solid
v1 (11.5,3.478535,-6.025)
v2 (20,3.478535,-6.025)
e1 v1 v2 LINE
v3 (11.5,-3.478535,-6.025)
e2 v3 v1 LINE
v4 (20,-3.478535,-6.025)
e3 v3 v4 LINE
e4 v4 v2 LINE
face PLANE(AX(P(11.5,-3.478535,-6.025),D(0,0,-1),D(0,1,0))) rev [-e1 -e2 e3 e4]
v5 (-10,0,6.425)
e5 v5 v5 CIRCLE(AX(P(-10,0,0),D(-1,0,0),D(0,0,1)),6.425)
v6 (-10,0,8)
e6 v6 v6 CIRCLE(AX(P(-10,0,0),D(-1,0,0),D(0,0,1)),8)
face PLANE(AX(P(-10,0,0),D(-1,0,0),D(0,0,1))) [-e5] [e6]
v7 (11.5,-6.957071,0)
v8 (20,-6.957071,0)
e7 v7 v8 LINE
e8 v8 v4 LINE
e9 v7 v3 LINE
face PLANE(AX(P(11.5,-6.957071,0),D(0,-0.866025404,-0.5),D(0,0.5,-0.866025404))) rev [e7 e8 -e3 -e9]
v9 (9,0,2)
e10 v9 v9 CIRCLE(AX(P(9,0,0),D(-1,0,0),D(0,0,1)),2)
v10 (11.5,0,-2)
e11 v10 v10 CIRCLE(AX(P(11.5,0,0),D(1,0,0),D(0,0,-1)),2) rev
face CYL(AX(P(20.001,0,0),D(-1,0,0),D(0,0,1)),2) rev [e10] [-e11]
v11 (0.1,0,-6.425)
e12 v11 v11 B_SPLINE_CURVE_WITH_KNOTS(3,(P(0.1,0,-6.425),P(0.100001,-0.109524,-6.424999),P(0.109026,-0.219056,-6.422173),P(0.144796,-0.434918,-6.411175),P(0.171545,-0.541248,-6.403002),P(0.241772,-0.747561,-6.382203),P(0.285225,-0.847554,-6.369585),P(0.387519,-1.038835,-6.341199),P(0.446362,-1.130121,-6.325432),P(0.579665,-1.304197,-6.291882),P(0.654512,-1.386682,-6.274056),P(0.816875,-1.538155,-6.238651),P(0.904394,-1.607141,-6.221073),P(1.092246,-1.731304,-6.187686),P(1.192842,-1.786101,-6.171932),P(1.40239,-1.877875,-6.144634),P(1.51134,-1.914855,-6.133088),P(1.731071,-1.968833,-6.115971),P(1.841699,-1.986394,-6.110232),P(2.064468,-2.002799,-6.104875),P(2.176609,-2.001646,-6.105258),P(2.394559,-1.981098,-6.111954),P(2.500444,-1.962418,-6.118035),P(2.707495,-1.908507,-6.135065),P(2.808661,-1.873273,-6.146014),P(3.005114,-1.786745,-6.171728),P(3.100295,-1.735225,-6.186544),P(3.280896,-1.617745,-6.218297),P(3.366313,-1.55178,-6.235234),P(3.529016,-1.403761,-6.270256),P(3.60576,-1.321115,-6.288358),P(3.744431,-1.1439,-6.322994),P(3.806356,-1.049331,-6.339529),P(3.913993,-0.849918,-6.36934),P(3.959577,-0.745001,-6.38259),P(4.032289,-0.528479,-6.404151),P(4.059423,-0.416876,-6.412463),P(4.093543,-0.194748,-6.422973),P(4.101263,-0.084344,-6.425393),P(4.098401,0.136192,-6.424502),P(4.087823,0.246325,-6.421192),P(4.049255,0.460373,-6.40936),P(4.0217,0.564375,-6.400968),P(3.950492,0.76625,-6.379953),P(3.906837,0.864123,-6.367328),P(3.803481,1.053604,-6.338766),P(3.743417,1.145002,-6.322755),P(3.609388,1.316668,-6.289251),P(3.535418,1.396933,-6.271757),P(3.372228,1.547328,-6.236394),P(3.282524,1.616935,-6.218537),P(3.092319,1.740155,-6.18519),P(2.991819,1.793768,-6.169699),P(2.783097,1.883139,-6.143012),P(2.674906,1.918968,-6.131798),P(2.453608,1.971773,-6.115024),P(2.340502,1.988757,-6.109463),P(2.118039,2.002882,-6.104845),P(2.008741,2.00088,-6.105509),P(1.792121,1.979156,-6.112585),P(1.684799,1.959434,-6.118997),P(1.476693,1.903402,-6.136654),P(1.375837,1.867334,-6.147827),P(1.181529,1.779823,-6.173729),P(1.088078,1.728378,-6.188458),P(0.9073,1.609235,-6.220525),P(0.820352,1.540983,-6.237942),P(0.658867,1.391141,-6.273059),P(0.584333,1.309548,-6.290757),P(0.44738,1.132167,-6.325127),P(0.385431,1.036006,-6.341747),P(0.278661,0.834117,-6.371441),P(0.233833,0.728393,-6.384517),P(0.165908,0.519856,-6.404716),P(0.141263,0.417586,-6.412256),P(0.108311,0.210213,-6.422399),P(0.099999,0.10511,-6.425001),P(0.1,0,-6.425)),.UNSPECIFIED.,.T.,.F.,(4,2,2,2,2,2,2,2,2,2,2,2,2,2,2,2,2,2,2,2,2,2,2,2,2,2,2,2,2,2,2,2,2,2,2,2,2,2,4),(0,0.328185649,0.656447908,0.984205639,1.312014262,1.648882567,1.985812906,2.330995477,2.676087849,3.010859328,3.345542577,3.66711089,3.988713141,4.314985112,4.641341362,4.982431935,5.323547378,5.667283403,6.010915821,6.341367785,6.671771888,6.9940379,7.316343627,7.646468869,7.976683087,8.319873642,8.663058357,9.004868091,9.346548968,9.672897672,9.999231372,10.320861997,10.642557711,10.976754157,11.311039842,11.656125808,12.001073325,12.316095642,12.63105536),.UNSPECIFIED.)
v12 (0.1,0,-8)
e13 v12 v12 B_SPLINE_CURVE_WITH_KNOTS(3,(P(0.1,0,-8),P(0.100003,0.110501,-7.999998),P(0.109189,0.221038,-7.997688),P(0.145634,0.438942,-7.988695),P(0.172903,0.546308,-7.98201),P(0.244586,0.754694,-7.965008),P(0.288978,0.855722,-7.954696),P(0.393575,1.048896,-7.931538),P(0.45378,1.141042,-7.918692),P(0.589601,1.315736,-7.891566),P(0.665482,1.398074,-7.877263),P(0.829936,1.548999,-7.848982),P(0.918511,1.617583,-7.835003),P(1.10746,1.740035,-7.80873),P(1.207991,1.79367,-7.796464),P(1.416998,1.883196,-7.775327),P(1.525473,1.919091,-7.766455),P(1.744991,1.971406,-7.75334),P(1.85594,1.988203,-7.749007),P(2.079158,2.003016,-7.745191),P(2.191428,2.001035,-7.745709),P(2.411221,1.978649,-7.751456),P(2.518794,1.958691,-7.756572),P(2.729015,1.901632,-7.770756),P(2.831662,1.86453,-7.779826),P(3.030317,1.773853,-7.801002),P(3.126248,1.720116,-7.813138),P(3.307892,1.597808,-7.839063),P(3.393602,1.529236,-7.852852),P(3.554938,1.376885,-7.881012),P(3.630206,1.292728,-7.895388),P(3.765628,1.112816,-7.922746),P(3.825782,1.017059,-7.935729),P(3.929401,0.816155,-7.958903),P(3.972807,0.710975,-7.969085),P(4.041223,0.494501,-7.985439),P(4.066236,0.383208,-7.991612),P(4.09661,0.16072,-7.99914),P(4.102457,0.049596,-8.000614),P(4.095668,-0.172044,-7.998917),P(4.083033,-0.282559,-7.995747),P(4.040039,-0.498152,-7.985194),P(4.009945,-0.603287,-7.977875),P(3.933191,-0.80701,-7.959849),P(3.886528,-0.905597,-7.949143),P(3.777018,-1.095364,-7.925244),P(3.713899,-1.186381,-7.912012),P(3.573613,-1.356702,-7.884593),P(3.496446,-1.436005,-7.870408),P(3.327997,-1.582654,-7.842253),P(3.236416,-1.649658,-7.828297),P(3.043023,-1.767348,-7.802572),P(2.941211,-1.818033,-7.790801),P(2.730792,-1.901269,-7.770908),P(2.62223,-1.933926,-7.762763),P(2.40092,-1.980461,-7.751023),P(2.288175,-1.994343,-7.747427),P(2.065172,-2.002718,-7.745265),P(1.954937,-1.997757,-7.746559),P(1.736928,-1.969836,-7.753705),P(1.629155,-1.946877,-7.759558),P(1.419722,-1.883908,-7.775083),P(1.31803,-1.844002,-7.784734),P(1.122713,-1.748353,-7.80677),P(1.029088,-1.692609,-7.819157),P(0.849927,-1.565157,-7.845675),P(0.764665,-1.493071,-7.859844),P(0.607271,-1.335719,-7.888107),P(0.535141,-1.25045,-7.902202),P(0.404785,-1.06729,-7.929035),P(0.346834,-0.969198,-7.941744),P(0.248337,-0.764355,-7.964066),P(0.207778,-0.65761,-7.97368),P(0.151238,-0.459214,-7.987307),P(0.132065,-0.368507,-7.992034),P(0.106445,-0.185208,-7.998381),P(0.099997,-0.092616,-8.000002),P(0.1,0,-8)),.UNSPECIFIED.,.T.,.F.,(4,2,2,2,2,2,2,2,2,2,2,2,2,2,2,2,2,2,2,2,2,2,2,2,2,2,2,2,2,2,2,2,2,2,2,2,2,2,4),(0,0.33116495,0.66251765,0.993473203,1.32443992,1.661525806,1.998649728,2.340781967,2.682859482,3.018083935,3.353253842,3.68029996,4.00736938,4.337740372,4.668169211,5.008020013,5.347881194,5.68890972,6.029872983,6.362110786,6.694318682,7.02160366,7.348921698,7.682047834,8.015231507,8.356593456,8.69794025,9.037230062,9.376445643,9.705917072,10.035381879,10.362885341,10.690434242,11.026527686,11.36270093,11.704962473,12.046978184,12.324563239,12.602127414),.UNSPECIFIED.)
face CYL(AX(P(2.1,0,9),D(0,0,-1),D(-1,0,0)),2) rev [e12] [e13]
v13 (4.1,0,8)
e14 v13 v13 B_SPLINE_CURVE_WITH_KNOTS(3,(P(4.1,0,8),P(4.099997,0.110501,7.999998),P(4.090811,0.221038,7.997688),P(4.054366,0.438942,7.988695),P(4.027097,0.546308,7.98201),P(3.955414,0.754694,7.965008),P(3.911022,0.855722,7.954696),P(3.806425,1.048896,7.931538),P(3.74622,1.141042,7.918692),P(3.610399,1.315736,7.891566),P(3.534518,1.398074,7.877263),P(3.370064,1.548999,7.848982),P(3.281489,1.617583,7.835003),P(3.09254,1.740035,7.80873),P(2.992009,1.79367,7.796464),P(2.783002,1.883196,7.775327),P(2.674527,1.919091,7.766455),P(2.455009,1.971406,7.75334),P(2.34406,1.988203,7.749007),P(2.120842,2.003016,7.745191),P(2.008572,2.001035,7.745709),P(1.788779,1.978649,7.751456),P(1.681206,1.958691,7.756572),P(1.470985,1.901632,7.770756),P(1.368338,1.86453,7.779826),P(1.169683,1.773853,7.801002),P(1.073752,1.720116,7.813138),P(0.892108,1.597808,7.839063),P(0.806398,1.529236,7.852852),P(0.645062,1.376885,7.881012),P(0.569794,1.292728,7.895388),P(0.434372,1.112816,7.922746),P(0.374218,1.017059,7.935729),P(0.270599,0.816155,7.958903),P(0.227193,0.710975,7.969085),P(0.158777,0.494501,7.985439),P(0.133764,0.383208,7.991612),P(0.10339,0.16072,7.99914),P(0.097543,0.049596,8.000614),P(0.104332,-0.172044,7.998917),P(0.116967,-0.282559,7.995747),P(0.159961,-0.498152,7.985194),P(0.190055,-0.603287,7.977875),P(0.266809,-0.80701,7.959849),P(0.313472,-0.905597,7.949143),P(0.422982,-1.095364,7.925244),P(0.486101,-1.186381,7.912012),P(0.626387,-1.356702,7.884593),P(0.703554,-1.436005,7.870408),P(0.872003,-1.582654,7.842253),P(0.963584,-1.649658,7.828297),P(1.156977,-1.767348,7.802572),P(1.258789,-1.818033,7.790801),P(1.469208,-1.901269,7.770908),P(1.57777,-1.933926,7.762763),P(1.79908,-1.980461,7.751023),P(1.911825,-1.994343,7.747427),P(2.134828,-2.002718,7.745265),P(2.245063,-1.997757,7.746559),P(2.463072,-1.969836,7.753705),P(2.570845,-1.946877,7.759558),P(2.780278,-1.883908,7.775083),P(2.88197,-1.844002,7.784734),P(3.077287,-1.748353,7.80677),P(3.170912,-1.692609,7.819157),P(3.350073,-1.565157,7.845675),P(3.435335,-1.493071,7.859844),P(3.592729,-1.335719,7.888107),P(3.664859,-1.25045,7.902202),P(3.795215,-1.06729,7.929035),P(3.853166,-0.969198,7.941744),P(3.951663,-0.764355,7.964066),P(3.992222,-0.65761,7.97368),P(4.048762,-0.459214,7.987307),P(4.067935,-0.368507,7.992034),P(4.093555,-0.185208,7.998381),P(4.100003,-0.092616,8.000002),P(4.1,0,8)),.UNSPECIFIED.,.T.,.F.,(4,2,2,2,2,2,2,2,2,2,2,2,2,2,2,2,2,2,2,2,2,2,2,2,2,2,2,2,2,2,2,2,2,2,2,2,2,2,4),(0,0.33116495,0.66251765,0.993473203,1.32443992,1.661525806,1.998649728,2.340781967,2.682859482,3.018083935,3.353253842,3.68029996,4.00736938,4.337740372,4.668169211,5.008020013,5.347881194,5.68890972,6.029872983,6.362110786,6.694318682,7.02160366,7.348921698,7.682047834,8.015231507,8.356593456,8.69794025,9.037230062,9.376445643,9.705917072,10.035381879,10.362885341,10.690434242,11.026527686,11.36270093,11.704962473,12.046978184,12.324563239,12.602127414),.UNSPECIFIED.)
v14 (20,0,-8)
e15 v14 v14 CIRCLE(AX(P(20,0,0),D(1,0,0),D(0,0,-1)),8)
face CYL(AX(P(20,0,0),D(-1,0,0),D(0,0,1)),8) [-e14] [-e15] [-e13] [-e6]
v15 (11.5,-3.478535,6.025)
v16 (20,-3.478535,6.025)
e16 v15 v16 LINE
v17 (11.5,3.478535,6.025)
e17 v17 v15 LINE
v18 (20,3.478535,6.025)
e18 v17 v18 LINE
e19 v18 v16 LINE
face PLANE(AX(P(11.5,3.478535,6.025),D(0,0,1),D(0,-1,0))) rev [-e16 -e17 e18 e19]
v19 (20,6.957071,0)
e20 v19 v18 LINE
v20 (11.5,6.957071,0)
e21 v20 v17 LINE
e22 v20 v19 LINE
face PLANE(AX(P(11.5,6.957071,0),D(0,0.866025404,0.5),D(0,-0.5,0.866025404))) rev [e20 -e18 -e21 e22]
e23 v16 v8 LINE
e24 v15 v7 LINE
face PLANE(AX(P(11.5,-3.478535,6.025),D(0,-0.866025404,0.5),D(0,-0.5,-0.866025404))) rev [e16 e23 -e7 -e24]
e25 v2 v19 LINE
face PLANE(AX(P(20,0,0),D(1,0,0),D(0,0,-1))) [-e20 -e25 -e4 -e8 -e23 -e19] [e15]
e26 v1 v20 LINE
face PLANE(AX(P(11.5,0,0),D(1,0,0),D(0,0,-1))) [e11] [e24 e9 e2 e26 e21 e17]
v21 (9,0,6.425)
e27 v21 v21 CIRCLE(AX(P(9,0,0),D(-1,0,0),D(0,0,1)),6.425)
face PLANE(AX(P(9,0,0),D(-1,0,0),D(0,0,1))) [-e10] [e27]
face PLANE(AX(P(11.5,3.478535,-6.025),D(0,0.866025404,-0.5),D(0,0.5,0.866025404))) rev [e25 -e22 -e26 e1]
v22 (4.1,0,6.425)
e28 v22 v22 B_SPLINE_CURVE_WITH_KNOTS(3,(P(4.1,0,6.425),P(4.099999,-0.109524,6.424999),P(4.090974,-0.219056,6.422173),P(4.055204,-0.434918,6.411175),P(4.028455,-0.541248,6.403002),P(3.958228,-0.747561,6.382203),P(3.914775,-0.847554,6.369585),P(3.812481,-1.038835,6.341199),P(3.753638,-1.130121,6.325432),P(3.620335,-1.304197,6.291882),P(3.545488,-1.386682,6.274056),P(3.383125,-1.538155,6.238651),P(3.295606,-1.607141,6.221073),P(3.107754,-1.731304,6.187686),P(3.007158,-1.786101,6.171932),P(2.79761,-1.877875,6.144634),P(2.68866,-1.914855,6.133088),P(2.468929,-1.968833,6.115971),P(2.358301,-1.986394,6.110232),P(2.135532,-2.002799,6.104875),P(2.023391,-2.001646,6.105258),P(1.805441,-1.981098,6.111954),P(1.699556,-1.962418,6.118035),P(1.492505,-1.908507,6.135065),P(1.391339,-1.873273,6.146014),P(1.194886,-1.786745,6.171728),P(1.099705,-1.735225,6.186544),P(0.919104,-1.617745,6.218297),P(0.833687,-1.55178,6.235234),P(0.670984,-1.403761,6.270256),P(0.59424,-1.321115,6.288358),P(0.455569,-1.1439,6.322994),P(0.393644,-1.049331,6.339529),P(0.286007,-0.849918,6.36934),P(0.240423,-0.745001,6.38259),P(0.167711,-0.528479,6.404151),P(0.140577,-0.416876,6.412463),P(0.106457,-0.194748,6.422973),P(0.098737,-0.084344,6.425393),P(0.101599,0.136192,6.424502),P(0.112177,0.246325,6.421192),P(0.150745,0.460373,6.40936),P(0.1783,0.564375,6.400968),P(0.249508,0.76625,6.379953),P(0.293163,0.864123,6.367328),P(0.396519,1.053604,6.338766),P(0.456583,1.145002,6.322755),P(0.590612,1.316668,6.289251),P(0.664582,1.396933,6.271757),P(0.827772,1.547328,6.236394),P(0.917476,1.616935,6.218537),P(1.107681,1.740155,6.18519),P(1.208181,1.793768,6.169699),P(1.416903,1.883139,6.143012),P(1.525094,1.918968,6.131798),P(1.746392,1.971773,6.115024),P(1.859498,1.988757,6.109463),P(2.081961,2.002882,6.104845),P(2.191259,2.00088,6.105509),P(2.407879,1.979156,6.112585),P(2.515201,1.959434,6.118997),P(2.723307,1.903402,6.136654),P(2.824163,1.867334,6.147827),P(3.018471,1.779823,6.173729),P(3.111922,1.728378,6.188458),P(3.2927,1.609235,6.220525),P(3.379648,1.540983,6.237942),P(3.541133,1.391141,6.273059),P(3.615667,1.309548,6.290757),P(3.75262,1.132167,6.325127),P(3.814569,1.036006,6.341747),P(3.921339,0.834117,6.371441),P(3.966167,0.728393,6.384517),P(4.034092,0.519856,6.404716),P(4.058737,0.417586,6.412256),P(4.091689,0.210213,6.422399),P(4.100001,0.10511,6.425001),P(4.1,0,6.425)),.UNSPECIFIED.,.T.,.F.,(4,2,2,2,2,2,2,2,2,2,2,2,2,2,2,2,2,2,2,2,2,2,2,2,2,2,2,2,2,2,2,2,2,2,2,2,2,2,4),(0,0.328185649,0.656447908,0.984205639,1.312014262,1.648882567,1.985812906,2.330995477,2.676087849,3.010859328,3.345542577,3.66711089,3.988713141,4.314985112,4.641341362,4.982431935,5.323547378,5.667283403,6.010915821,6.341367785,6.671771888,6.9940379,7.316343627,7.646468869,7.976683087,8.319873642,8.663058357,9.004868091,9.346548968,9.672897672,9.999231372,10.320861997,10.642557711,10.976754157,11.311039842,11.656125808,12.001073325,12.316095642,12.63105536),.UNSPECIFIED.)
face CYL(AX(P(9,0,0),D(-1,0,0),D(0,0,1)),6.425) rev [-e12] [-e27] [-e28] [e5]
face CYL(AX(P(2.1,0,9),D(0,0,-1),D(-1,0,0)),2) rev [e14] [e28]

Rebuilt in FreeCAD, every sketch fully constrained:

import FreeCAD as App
import Part
import Sketcher

V = App.Vector
Q = App.Units.Quantity


def add_polygon(sketch, points):
    """Adds a closed chain of lines whose ends are joined by coincident constraints."""
    first, n = sketch.GeometryCount, len(points)
    for a, b in zip(points, points[1:] + points[:1]):
        sketch.addGeometry(Part.LineSegment(App.Vector(*a, 0), App.Vector(*b, 0)), False)
    for i in range(n):
        sketch.addConstraint(Sketcher.Constraint("Coincident", first + i, 2, first + (i + 1) % n, 1))

doc = App.newDocument("Part")
body = doc.addObject("PartDesign::Body", "Body")

# Sketch on YZ plane
sketch1 = doc.addObject("Sketcher::SketchObject", "Sketch")
body.addObject(sketch1)
sketch1.AttachmentSupport = (doc.YZ_Plane, [""])
sketch1.MapMode = "FlatFace"
sketch1.addGeometry(Part.Circle(V(0, 0, 0), V(0, 0, 1), 8), False)
sketch1.addConstraint([
    Sketcher.Constraint("Coincident", 0, 3, -1, 1),
    Sketcher.Constraint("Diameter", 0, Q("16 mm")),
])
pad1 = doc.addObject("PartDesign::Pad", "Pad")
body.addObject(pad1)
pad1.Profile = sketch1
pad1.Length = 20

# Sketch on YZ plane
sketch2 = doc.addObject("Sketcher::SketchObject", "Sketch001")
body.addObject(sketch2)
sketch2.AttachmentSupport = (doc.YZ_Plane, [""])
sketch2.MapMode = "FlatFace"
sketch2.AttachmentOffset = App.Placement(V(0, 0, 20), App.Rotation())
add_polygon(sketch2, [(-7, 0), (-3, -6), (3, -6), (7, 0), (3, 6), (-3, 6)])  # lines 0-5
sketch2.addConstraint([
    Sketcher.Constraint("Horizontal", 1),
    Sketcher.Constraint("Horizontal", 4),
    Sketcher.Constraint("Symmetric", 0, 2, 3, 2, -1, 1),
    Sketcher.Constraint("Symmetric", 2, 2, 5, 2, -1, 1),
    Sketcher.Constraint("PointOnObject", 2, 2, -1),
    Sketcher.Constraint("Parallel", 2, 5),
    Sketcher.Constraint("Vertical", 1, 2, 3, 2),
    Sketcher.Constraint("Angle", 0, Q("-60 deg")),
    Sketcher.Constraint("DistanceY", 1, 2, 3, 2, Q("12.05 mm")),
    Sketcher.Constraint("DistanceX", 1, 1, 1, 2, Q("6.957071 mm")),
])
pocket1 = doc.addObject("PartDesign::Pocket", "Pocket")
body.addObject(pocket1)
pocket1.Profile = sketch2
pocket1.Length = 8.5

# Sketch on YZ plane
sketch3 = doc.addObject("Sketcher::SketchObject", "Sketch002")
body.addObject(sketch3)
sketch3.AttachmentSupport = (doc.YZ_Plane, [""])
sketch3.MapMode = "FlatFace"
sketch3.addGeometry(Part.Circle(V(0, 0, 0), V(0, 0, 1), 6), False)
sketch3.addConstraint([
    Sketcher.Constraint("Coincident", 0, 3, -1, 1),
    Sketcher.Constraint("Diameter", 0, Q("12.85 mm")),
])
pocket2 = doc.addObject("PartDesign::Pocket", "Pocket001")
body.addObject(pocket2)
pocket2.Profile = sketch3
pocket2.Length = 9
pocket2.Reversed = True

# Sketch on YZ plane
sketch4 = doc.addObject("Sketcher::SketchObject", "Sketch003")
body.addObject(sketch4)
sketch4.AttachmentSupport = (doc.YZ_Plane, [""])
sketch4.MapMode = "FlatFace"
sketch4.AttachmentOffset = App.Placement(V(0, 0, 9), App.Rotation())
sketch4.addGeometry(Part.Circle(V(0, 0, 0), V(0, 0, 1), 2), False)
sketch4.addConstraint([
    Sketcher.Constraint("Coincident", 0, 3, -1, 1),
    Sketcher.Constraint("Diameter", 0, Q("4 mm")),
])
pocket3 = doc.addObject("PartDesign::Pocket", "Pocket002")
body.addObject(pocket3)
pocket3.Profile = sketch4
pocket3.Type = "UpToFirst"
pocket3.Reversed = True

# Sketch on XY plane
sketch5 = doc.addObject("Sketcher::SketchObject", "Sketch004")
body.addObject(sketch5)
sketch5.AttachmentSupport = (doc.XY_Plane, [""])
sketch5.MapMode = "FlatFace"
sketch5.addGeometry(Part.Circle(V(2.1, 0, 0), V(0, 0, 1), 2), False)
sketch5.addConstraint([
    Sketcher.Constraint("PointOnObject", 0, 3, -1),
    Sketcher.Constraint("Diameter", 0, Q("4 mm")),
    Sketcher.Constraint("DistanceX", -1, 1, 0, 3, Q("2.1 mm")),
])
pocket4 = doc.addObject("PartDesign::Pocket", "Pocket003")
body.addObject(pocket4)
pocket4.Profile = sketch5
pocket4.Type = "ThroughAll"
pocket4.Midplane = True

# Sketch on YZ plane
sketch6 = doc.addObject("Sketcher::SketchObject", "Sketch005")
body.addObject(sketch6)
sketch6.AttachmentSupport = (doc.YZ_Plane, [""])
sketch6.MapMode = "FlatFace"
sketch6.AttachmentOffset = App.Placement(V(0, 0, -10), App.Rotation())
sketch6.addGeometry([
    Part.Circle(V(0, 0, 0), V(0, 0, 1), 8),
    Part.Circle(V(0, 0, 0), V(0, 0, 1), 6),
], False)
sketch6.addConstraint([
    Sketcher.Constraint("Coincident", 0, 3, -1, 1),
    Sketcher.Constraint("Coincident", 1, 3, -1, 1),
    Sketcher.Constraint("Diameter", 0, Q("16 mm")),
    Sketcher.Constraint("Diameter", 1, Q("12.85 mm")),
])
pad2 = doc.addObject("PartDesign::Pad", "Pad001")
body.addObject(pad2)
pad2.Profile = sketch6
pad2.Length = 10

doc.recompute()
